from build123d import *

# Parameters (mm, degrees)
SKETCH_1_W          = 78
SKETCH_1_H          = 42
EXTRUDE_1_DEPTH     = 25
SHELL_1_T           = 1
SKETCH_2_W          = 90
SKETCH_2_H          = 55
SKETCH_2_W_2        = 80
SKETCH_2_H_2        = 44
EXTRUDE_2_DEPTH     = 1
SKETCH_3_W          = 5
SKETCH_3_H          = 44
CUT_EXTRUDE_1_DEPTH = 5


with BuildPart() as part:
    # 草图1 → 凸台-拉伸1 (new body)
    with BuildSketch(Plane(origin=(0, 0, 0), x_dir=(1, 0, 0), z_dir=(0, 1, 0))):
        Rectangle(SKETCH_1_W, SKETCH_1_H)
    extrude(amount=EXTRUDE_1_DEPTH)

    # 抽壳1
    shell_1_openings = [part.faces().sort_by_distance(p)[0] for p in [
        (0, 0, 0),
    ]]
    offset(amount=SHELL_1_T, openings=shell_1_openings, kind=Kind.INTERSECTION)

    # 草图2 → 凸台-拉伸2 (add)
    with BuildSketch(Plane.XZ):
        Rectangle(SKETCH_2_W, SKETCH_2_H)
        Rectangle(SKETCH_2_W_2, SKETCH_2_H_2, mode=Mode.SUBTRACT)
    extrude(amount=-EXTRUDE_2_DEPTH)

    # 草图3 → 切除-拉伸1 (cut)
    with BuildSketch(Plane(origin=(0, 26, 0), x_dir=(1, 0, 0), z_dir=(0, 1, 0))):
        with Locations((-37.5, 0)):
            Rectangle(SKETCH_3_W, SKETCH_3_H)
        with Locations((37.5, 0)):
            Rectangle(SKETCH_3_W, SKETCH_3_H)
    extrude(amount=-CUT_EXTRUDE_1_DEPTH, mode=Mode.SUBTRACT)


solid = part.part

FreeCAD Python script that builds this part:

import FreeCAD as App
import Part
import Sketcher

V = App.Vector


def faces_at(feature, points):
    """Names of the faces that lie closest to the given points."""
    faces = feature.Shape.Faces
    near = lambda p: min(range(len(faces)), key=lambda i: faces[i].distToShape(Part.Vertex(*p))[0])
    return sorted({f"Face{near(p) + 1}" for p in points})


def add_polygon(sketch, points):
    """Adds a closed chain of lines whose ends are joined by coincident constraints."""
    first, n = sketch.GeometryCount, len(points)
    for a, b in zip(points, points[1:] + points[:1]):
        sketch.addGeometry(Part.LineSegment(App.Vector(*a, 0), App.Vector(*b, 0)), False)
    for i in range(n):
        sketch.addConstraint(Sketcher.Constraint("Coincident", first + i, 2, first + (i + 1) % n, 1))

doc = App.newDocument("Part")
body = doc.addObject("PartDesign::Body", "Body")

sketch1 = body.newObject("Sketcher::SketchObject", "Sketch")
sketch1.AttachmentSupport = (doc.getObject("XZ_Plane"), [""])
sketch1.MapMode = "FlatFace"
add_polygon(sketch1, [(-39, -21), (-39, 21), (39, 21), (39, -21)])
sketch1.addConstraint(Sketcher.Constraint("Vertical", 0))
sketch1.addConstraint(Sketcher.Constraint("Horizontal", 1))
sketch1.addConstraint(Sketcher.Constraint("Vertical", 2))
sketch1.addConstraint(Sketcher.Constraint("Horizontal", 3))
sketch1.addConstraint(Sketcher.Constraint("Symmetric", 0, 2, 2, 2, -1, 1))
sketch1.addConstraint(Sketcher.Constraint("DistanceX", 1, 1, 1, 2, 78.0))
sketch1.addConstraint(Sketcher.Constraint("DistanceY", 0, 1, 0, 2, 42.0))
pad1 = body.newObject("PartDesign::Pad", "Pad")
pad1.Profile = sketch1
pad1.Length = 25
pad1.Reversed = True
doc.recompute()

thickness = body.newObject("PartDesign::Thickness", "Thickness")
thickness.Base = (pad1, faces_at(pad1, [(0, 0, 0)]))
thickness.Value = 1
thickness.Reversed = False
thickness.Join = "Intersection"

sketch2 = body.newObject("Sketcher::SketchObject", "Sketch001")
sketch2.AttachmentSupport = (doc.getObject("XZ_Plane"), [""])
sketch2.MapMode = "FlatFace"
add_polygon(sketch2, [(-45, 27.5), (-45, -27.5), (45, -27.5), (45, 27.5)])
add_polygon(sketch2, [(40, -22), (-40, -22), (-40, 22), (40, 22)])
sketch2.addConstraint(Sketcher.Constraint("Vertical", 0))
sketch2.addConstraint(Sketcher.Constraint("Horizontal", 1))
sketch2.addConstraint(Sketcher.Constraint("Vertical", 2))
sketch2.addConstraint(Sketcher.Constraint("Horizontal", 3))
sketch2.addConstraint(Sketcher.Constraint("Horizontal", 4))
sketch2.addConstraint(Sketcher.Constraint("Vertical", 5))
sketch2.addConstraint(Sketcher.Constraint("Horizontal", 6))
sketch2.addConstraint(Sketcher.Constraint("Vertical", 7))
sketch2.addConstraint(Sketcher.Constraint("Symmetric", 0, 2, 2, 2, -1, 1))
sketch2.addConstraint(Sketcher.Constraint("Symmetric", 4, 2, 6, 2, -1, 1))
sketch2.addConstraint(Sketcher.Constraint("DistanceX", 1, 1, 1, 2, 90.0))
sketch2.addConstraint(Sketcher.Constraint("DistanceX", 4, 2, 4, 1, 80.0))
sketch2.addConstraint(Sketcher.Constraint("DistanceY", 0, 2, 0, 1, 55.0))
sketch2.addConstraint(Sketcher.Constraint("DistanceY", 5, 1, 5, 2, 44.0))
pad2 = body.newObject("PartDesign::Pad", "Pad001")
pad2.Profile = sketch2
pad2.Length = 1
pad2.Reversed = True

sketch3 = body.newObject("Sketcher::SketchObject", "Sketch002")
sketch3.AttachmentSupport = (doc.getObject("XZ_Plane"), [""])
sketch3.MapMode = "FlatFace"
sketch3.AttachmentOffset = App.Placement(V(0, 0, -26), App.Rotation())
add_polygon(sketch3, [(-40, -22), (-40, 22), (-35, 22), (-35, -22)])
add_polygon(sketch3, [(35, -22), (35, 22), (40, 22), (40, -22)])
sketch3.addConstraint(Sketcher.Constraint("Vertical", 0))
sketch3.addConstraint(Sketcher.Constraint("Horizontal", 1))
sketch3.addConstraint(Sketcher.Constraint("Vertical", 2))
sketch3.addConstraint(Sketcher.Constraint("Horizontal", 3))
sketch3.addConstraint(Sketcher.Constraint("Vertical", 4))
sketch3.addConstraint(Sketcher.Constraint("Horizontal", 5))
sketch3.addConstraint(Sketcher.Constraint("Vertical", 6))
sketch3.addConstraint(Sketcher.Constraint("Horizontal", 7))
sketch3.addConstraint(Sketcher.Constraint("Symmetric", 2, 2, 4, 2, -1, 1))
sketch3.addConstraint(Sketcher.Constraint("Symmetric", 0, 2, 6, 2, -1, 1))
sketch3.addConstraint(Sketcher.Constraint("Horizontal", 1, 2, 4, 2))
sketch3.addConstraint(Sketcher.Constraint("DistanceX", 1, 1, 1, 2, 5.0))
sketch3.addConstraint(Sketcher.Constraint("DistanceY", 0, 1, 0, 2, 44.0))
sketch3.addConstraint(Sketcher.Constraint("DistanceX", 0, 2, -1, 1, 40.0))
pocket1 = body.newObject("PartDesign::Pocket", "Pocket")
pocket1.Profile = sketch3
pocket1.Length = 5
pocket1.Reversed = True

doc.recompute()
